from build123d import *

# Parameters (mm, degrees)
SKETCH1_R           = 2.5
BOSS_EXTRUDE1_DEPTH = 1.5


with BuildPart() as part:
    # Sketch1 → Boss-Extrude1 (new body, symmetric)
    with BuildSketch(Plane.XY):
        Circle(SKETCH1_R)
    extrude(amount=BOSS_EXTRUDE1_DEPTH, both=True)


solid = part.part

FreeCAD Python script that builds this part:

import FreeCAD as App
import Part
import Sketcher

V = App.Vector
Q = App.Units.Quantity

doc = App.newDocument("Part")
params = doc.addObject("Spreadsheet::Sheet", "Params")
for row, (alias, value) in enumerate([
    ("sketch1_diameter", "5 mm"),
    ("pad1_length", "3 mm"),
], start=1):
    params.set(f"A{row}", alias)
    params.set(f"B{row}", "=" + value)
    params.setAlias(f"B{row}", alias)

body = doc.addObject("PartDesign::Body", "Body")

# Sketch on XY plane
sketch1 = body.newObject("Sketcher::SketchObject", "Sketch")
sketch1.AttachmentSupport = (doc.getObject("XY_Plane"), [""])
sketch1.MapMode = "FlatFace"
sketch1.addGeometry(Part.Circle(V(0, 0, 0), V(0, 0, 1), 2.5), False)
sketch1.addConstraint(Sketcher.Constraint("Coincident", 0, 3, -1, 1))
sketch1.addConstraint(Sketcher.Constraint("Diameter", 0, Q("5 mm")))
sketch1.setExpression("Constraints[1]", "Params.sketch1_diameter")
pad1 = body.newObject("PartDesign::Pad", "Pad")
pad1.Profile = sketch1
pad1.setExpression("Length", "Params.pad1_length")
pad1.Midplane = True

doc.recompute()
